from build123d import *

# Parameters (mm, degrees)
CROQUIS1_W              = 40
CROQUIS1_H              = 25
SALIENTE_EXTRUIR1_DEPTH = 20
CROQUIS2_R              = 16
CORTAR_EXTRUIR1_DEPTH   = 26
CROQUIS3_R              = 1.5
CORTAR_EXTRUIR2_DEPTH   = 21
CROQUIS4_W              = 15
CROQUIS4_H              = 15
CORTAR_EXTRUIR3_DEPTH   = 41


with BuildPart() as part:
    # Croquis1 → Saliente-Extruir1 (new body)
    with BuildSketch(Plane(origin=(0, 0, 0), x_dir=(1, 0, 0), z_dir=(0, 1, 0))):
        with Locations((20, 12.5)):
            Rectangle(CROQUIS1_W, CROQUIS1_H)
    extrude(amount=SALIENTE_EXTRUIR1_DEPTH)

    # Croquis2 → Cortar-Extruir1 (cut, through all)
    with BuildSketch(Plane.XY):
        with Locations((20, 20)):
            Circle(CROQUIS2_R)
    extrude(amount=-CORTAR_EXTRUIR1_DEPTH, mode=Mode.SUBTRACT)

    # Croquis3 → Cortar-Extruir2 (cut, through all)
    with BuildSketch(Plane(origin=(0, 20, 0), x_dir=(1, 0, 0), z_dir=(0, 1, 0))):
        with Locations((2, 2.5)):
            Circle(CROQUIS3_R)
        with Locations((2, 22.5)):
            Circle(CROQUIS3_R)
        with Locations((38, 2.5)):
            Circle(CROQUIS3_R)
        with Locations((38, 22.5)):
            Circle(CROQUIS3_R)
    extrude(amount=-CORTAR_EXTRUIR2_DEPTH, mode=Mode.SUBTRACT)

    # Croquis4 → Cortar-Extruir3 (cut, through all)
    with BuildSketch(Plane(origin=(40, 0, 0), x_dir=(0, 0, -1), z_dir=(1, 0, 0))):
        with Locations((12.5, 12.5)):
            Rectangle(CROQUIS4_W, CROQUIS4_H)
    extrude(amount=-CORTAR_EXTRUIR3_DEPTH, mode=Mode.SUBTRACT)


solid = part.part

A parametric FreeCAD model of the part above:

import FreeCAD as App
import Part
import Sketcher
Q = App.Units.Quantity


def add_polygon(sketch, points):
    """Adds a closed chain of lines whose ends are joined by coincident constraints."""
    first, n = sketch.GeometryCount, len(points)
    for a, b in zip(points, points[1:] + points[:1]):
        sketch.addGeometry(Part.LineSegment(App.Vector(*a, 0), App.Vector(*b, 0)), False)
    for i in range(n):
        sketch.addConstraint(Sketcher.Constraint("Coincident", first + i, 2, first + (i + 1) % n, 1))

doc = App.newDocument("Part")
body = doc.addObject("PartDesign::Body", "Body")

sketch1 = body.newObject("Sketcher::SketchObject", "Sketch")
sketch1.AttachmentSupport = (doc.getObject("XZ_Plane"), [""])
sketch1.MapMode = "FlatFace"
add_polygon(sketch1, [(0, -25), (0, 0), (40, 0), (40, -25)])
sketch1.addConstraint([
    Sketcher.Constraint("Vertical", 0),
    Sketcher.Constraint("Horizontal", 1),
    Sketcher.Constraint("Vertical", 2),
    Sketcher.Constraint("Horizontal", 3),
    Sketcher.Constraint("Coincident", 0, 2, -1, 1),
    Sketcher.Constraint("DistanceX", 1, 1, 1, 2, Q("40 mm")),
    Sketcher.Constraint("DistanceY", 0, 1, 0, 2, Q("25 mm")),
])
pad1 = body.newObject("PartDesign::Pad", "Pad")
pad1.Profile = sketch1
pad1.Length = 20
pad1.Reversed = True

sketch2 = body.newObject("Sketcher::SketchObject", "Sketch001")
sketch2.AttachmentSupport = (doc.getObject("XY_Plane"), [""])
sketch2.MapMode = "FlatFace"
sketch2.addGeometry(Part.Circle(App.Vector(20, 20, 0), App.Vector(0, 0, 1), 16), False)
sketch2.addConstraint([
    Sketcher.Constraint("Diameter", 0, Q("32 mm")),
    Sketcher.Constraint("DistanceX", -1, 1, 0, 3, Q("20 mm")),
    Sketcher.Constraint("DistanceY", -1, 1, 0, 3, Q("20 mm")),
])
pocket1 = body.newObject("PartDesign::Pocket", "Pocket")
pocket1.Profile = sketch2
pocket1.Type = "ThroughAll"

sketch3 = body.newObject("Sketcher::SketchObject", "Sketch002")
sketch3.AttachmentSupport = (doc.getObject("XZ_Plane"), [""])
sketch3.MapMode = "FlatFace"
sketch3.AttachmentOffset = App.Placement(App.Vector(0, 0, -20), App.Rotation())
sketch3.addGeometry([
    Part.Circle(App.Vector(2, -2.5, 0), App.Vector(0, 0, 1), 1.5),
    Part.Circle(App.Vector(2, -22.5, 0), App.Vector(0, 0, 1), 1.5),
    Part.Circle(App.Vector(38, -2.5, 0), App.Vector(0, 0, 1), 1.5),
    Part.Circle(App.Vector(38, -22.5, 0), App.Vector(0, 0, 1), 1.5),
], False)
sketch3.addConstraint([
    Sketcher.Constraint("Equal", 0, 1),
    Sketcher.Constraint("Equal", 1, 2),
    Sketcher.Constraint("Equal", 2, 3),
    Sketcher.Constraint("Horizontal", 0, 3, 2, 3),
    Sketcher.Constraint("Horizontal", 1, 3, 3, 3),
    Sketcher.Constraint("Vertical", 0, 3, 1, 3),
    Sketcher.Constraint("Vertical", 2, 3, 3, 3),
    Sketcher.Constraint("Diameter", 0, Q("3 mm")),
    Sketcher.Constraint("DistanceX", -1, 1, 0, 3, Q("2 mm")),
    Sketcher.Constraint("DistanceX", -1, 1, 2, 3, Q("38 mm")),
    Sketcher.Constraint("DistanceY", 1, 3, 0, 3, Q("20 mm")),
    Sketcher.Constraint("DistanceY", 0, 3, -1, 1, Q("2.5 mm")),
])
pocket2 = body.newObject("PartDesign::Pocket", "Pocket001")
pocket2.Profile = sketch3
pocket2.Type = "ThroughAll"
pocket2.Reversed = True

sketch4 = body.newObject("Sketcher::SketchObject", "Sketch003")
sketch4.AttachmentSupport = (doc.getObject("YZ_Plane"), [""])
sketch4.MapMode = "FlatFace"
sketch4.AttachmentOffset = App.Placement(App.Vector(0, 0, 40), App.Rotation())
add_polygon(sketch4, [(20, -5), (5, -5), (5, -20), (20, -20)])
sketch4.addConstraint([
    Sketcher.Constraint("Horizontal", 0),
    Sketcher.Constraint("Vertical", 1),
    Sketcher.Constraint("Horizontal", 2),
    Sketcher.Constraint("Vertical", 3),
    Sketcher.Constraint("Equal", 2, 1),
    Sketcher.Constraint("DistanceX", 0, 2, 0, 1, Q("15 mm")),
    Sketcher.Constraint("DistanceX", -1, 1, 0, 2, Q("5 mm")),
    Sketcher.Constraint("DistanceY", 0, 2, -1, 1, Q("5 mm")),
])
pocket3 = body.newObject("PartDesign::Pocket", "Pocket002")
pocket3.Profile = sketch4
pocket3.Type = "ThroughAll"

doc.recompute()
